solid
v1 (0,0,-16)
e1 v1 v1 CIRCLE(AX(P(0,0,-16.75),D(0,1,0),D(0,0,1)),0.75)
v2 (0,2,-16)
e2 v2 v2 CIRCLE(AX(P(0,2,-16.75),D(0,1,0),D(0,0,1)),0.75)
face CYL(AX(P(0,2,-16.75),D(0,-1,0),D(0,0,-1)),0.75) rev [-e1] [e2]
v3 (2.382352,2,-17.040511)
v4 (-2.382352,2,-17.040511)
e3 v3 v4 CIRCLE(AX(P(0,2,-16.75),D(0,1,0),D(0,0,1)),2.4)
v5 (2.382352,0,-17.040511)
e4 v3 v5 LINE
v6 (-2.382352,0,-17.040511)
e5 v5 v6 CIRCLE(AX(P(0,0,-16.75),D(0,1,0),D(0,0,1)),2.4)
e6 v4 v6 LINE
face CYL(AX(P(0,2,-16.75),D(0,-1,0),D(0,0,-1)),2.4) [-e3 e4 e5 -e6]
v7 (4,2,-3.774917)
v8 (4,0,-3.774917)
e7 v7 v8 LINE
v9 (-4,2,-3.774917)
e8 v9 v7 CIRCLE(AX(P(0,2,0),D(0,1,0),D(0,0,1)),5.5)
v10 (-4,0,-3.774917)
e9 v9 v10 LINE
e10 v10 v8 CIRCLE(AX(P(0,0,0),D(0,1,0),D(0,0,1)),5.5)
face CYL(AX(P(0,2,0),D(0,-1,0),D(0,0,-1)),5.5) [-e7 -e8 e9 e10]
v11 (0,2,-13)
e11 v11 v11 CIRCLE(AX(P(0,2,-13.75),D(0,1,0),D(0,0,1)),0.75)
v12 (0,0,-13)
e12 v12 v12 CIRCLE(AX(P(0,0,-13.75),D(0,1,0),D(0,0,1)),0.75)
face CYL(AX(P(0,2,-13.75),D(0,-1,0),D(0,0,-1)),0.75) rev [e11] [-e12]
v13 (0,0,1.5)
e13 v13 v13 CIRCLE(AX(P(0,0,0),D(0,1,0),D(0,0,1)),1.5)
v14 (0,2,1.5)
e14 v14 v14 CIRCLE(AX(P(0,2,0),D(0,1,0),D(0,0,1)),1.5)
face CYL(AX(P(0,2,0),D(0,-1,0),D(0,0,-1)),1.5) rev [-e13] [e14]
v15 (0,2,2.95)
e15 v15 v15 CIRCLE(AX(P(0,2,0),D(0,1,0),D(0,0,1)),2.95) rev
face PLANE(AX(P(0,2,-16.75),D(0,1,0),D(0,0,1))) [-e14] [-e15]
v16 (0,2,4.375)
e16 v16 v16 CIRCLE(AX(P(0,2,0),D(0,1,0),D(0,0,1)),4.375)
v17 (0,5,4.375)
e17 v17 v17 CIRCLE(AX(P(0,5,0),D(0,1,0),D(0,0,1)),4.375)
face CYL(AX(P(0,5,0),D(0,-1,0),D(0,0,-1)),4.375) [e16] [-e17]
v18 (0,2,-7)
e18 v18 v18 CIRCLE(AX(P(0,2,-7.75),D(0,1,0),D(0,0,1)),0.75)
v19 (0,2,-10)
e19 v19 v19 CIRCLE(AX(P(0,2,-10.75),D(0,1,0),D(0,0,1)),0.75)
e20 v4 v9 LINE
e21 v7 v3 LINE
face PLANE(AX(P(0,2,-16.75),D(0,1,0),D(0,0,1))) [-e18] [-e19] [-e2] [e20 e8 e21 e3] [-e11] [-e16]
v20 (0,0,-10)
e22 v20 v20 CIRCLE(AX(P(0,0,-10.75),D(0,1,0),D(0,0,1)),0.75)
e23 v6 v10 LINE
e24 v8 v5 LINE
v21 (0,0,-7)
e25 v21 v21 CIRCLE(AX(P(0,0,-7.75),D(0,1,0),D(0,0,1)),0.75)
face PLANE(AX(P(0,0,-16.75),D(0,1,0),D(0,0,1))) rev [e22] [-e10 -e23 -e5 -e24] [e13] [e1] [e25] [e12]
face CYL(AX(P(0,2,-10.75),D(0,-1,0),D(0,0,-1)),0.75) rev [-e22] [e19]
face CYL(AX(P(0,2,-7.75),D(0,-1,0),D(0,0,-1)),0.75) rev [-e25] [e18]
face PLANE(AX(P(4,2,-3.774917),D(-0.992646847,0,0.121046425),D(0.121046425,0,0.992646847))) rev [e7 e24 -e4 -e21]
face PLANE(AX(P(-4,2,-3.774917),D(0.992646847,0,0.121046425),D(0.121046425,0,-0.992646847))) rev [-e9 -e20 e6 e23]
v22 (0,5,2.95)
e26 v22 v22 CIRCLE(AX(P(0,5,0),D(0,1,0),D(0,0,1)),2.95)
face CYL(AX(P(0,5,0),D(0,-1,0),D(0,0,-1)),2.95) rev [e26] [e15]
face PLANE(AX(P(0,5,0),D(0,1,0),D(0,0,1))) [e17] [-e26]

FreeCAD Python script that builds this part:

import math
import FreeCAD as App
import Part
import Sketcher

V = App.Vector

doc = App.newDocument("Part")
params = doc.addObject("Spreadsheet::Sheet", "Params")
for row, (alias, value) in enumerate([
    ("sketch1_diameter", "3 mm"),
    ("sketch1_diameter2", "1.5 mm"),
    ("sketch1_radius", "5.5 mm"),
    ("sketch1_radius2", "2.4 mm"),
    ("pad1_length", "2 mm"),
    ("sketch2_diameter", "5.9 mm"),
    ("sketch2_diameter2", "8.75 mm"),
    ("pad2_length", "3 mm"),
], start=1):
    params.set(f"A{row}", alias)
    params.set(f"B{row}", "=" + value)
    params.setAlias(f"B{row}", alias)

body = doc.addObject("PartDesign::Body", "Body")

sketch1 = body.newObject("Sketcher::SketchObject", "Sketch")
sketch1.AttachmentSupport = (doc.getObject("XZ_Plane"), [""])
sketch1.MapMode = "FlatFace"
sketch1.addGeometry(Part.LineSegment(V(-2.382352, -17.040511, 0), V(-4, -3.774917, 0)), False)
sketch1.addGeometry(Part.ArcOfCircle(Part.Circle(V(0, 0, 0), V(0, 0, 1), 5.5), math.radians(-43.341758), math.radians(223.341758)), False)
sketch1.addGeometry(Part.LineSegment(V(4, -3.774917, 0), V(2.382352, -17.040511, 0)), False)
sketch1.addGeometry(Part.ArcOfCircle(Part.Circle(V(0, -16.75, 0), V(0, 0, 1), 2.4), math.radians(-173.047501), math.radians(-6.952499)), False)
sketch1.addGeometry(Part.Circle(V(0, 0, 0), V(0, 0, 1), 1.5), False)
sketch1.addGeometry(Part.Circle(V(0, -7.75, 0), V(0, 0, 1), 0.75), False)
sketch1.addGeometry(Part.Circle(V(0, -10.75, 0), V(0, 0, 1), 0.75), False)
sketch1.addGeometry(Part.Circle(V(0, -13.75, 0), V(0, 0, 1), 0.75), False)
sketch1.addGeometry(Part.Circle(V(0, -16.75, 0), V(0, 0, 1), 0.75), False)
sketch1.addConstraint(Sketcher.Constraint("Coincident", 0, 2, 1, 2))
sketch1.addConstraint(Sketcher.Constraint("Coincident", 1, 1, 2, 1))
sketch1.addConstraint(Sketcher.Constraint("Tangent", 2, 2, 3, 2))
sketch1.addConstraint(Sketcher.Constraint("Tangent", 3, 1, 0, 1))
sketch1.addConstraint(Sketcher.Constraint("Coincident", 1, 3, -1, 1))
sketch1.addConstraint(Sketcher.Constraint("Coincident", 4, 3, -1, 1))
sketch1.addConstraint(Sketcher.Constraint("Coincident", 8, 3, 3, 3))
sketch1.addConstraint(Sketcher.Constraint("Equal", 5, 6))
sketch1.addConstraint(Sketcher.Constraint("Equal", 6, 7))
sketch1.addConstraint(Sketcher.Constraint("Equal", 7, 8))
sketch1.addConstraint(Sketcher.Constraint("Symmetric", 2, 2, 3, 1, -2))
sketch1.addConstraint(Sketcher.Constraint("PointOnObject", 5, 3, -2))
sketch1.addConstraint(Sketcher.Constraint("PointOnObject", 6, 3, -2))
sketch1.addConstraint(Sketcher.Constraint("PointOnObject", 7, 3, -2))
sketch1.addConstraint(Sketcher.Constraint("Diameter", 4, 3.0))
sketch1.addConstraint(Sketcher.Constraint("Diameter", 5, 1.5))
sketch1.addConstraint(Sketcher.Constraint("Radius", 1, 5.5))
sketch1.addConstraint(Sketcher.Constraint("Radius", 3, 2.4))
sketch1.addConstraint(Sketcher.Constraint("DistanceX", 0, 2, -1, 1, 4.0))
sketch1.addConstraint(Sketcher.Constraint("DistanceY", 3, 3, 5, 3, 9.0))
sketch1.addConstraint(Sketcher.Constraint("DistanceY", 6, 3, 5, 3, 3.0))
sketch1.addConstraint(Sketcher.Constraint("DistanceY", 3, 3, 7, 3, 3.0))
sketch1.addConstraint(Sketcher.Constraint("DistanceY", 3, 3, -1, 1, 16.75))
sketch1.setExpression("Constraints[14]", "Params.sketch1_diameter")
sketch1.setExpression("Constraints[15]", "Params.sketch1_diameter2")
sketch1.setExpression("Constraints[16]", "Params.sketch1_radius")
sketch1.setExpression("Constraints[17]", "Params.sketch1_radius2")
pad1 = body.newObject("PartDesign::Pad", "Pad")
pad1.Profile = sketch1
pad1.setExpression("Length", "Params.pad1_length")
pad1.Reversed = True

sketch2 = body.newObject("Sketcher::SketchObject", "Sketch001")
sketch2.AttachmentSupport = (doc.getObject("XZ_Plane"), [""])
sketch2.MapMode = "FlatFace"
sketch2.AttachmentOffset = App.Placement(V(0, 0, -2), App.Rotation())
sketch2.addGeometry(Part.Circle(V(0, 0, 0), V(0, 0, 1), 4.375), False)
sketch2.addGeometry(Part.Circle(V(0, 0, 0), V(0, 0, 1), 2.95), False)
sketch2.addConstraint(Sketcher.Constraint("Coincident", 0, 3, -1, 1))
sketch2.addConstraint(Sketcher.Constraint("Coincident", 1, 3, -1, 1))
sketch2.addConstraint(Sketcher.Constraint("Diameter", 1, 5.9))
sketch2.addConstraint(Sketcher.Constraint("Diameter", 0, 8.75))
sketch2.setExpression("Constraints[2]", "Params.sketch2_diameter")
sketch2.setExpression("Constraints[3]", "Params.sketch2_diameter2")
pad2 = body.newObject("PartDesign::Pad", "Pad001")
pad2.Profile = sketch2
pad2.setExpression("Length", "Params.pad2_length")
pad2.Reversed = True

doc.recompute()
